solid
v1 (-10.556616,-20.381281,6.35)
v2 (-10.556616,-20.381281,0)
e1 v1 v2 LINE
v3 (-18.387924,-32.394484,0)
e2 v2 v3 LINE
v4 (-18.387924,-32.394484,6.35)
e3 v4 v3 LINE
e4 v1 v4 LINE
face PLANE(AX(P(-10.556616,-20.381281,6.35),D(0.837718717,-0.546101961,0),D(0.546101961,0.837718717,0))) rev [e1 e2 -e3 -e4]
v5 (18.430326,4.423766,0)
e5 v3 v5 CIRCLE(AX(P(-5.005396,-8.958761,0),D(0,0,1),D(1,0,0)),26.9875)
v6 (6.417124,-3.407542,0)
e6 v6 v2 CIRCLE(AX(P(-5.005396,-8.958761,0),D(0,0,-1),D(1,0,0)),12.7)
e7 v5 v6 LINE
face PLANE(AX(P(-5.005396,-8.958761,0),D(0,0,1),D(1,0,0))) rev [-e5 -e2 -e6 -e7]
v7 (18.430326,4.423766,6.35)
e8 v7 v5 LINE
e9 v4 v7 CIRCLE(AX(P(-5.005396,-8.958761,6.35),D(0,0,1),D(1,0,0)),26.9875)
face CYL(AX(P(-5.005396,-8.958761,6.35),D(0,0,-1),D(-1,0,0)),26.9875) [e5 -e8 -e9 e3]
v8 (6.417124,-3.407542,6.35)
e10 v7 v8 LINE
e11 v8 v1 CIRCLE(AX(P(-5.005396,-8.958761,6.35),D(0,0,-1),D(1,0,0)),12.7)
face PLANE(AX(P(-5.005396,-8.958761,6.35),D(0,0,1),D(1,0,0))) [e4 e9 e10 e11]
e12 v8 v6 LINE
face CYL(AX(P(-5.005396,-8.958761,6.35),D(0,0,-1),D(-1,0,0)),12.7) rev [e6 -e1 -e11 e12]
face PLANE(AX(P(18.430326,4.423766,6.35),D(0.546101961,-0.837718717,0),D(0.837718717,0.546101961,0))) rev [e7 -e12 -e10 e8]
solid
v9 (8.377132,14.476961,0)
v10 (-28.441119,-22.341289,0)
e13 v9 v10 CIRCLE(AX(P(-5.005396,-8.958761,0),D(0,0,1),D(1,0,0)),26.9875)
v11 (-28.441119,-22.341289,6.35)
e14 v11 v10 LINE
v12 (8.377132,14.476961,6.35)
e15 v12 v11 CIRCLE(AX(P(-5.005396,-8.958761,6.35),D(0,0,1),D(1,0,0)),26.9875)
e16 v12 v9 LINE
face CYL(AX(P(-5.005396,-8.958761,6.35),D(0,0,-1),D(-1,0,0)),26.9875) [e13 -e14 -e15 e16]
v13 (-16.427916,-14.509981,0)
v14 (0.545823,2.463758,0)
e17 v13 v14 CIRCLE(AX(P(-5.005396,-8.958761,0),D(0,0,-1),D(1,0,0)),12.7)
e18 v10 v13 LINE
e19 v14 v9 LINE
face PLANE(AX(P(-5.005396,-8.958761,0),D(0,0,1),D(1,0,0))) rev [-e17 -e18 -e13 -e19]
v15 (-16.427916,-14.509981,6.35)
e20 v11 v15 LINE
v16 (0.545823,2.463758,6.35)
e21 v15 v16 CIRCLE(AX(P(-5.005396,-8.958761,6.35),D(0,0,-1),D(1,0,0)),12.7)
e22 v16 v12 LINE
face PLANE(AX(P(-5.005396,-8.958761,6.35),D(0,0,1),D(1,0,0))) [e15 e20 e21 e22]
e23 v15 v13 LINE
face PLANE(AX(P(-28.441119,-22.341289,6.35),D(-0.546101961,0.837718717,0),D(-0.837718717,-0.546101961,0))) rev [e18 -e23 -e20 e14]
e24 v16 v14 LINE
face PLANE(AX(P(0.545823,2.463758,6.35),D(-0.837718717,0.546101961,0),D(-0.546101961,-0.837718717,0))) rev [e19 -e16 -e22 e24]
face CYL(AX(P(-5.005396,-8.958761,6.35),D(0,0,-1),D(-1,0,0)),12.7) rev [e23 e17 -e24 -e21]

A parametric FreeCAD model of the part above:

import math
import FreeCAD as App
import Part
import Sketcher
Q = App.Units.Quantity

doc = App.newDocument("Part")
body = doc.addObject("PartDesign::Body", "Body")

sketch1 = body.newObject("Sketcher::SketchObject", "Sketch")
sketch1.AttachmentSupport = (doc.getObject("XY_Plane"), [""])
sketch1.MapMode = "FlatFace"
sketch1.addGeometry([
    Part.LineSegment(App.Vector(-11, -20, 0), App.Vector(-18, -32, 0)),
    Part.ArcOfCircle(Part.Circle(App.Vector(-5, -9, 0), App.Vector(0, 0, 1), 27), math.radians(-120), math.radians(30)),
    Part.LineSegment(App.Vector(18, 4, 0), App.Vector(6, -3, 0)),
    Part.ArcOfCircle(Part.Circle(App.Vector(-5, -9, 0), App.Vector(0, 0, 1), 13), math.radians(-116), math.radians(26)),
], False)
sketch1.addConstraint([
    Sketcher.Constraint("Coincident", 0, 2, 1, 1),
    Sketcher.Constraint("Coincident", 1, 2, 2, 1),
    Sketcher.Constraint("Coincident", 2, 2, 3, 2),
    Sketcher.Constraint("Coincident", 3, 1, 0, 1),
    Sketcher.Constraint("Coincident", 3, 3, 1, 3),
    Sketcher.Constraint("Equal", 0, 2),
    Sketcher.Constraint("Radius", 3, Q("0.5 in")),
    Sketcher.Constraint("Radius", 1, Q("1.0625 in")),
    Sketcher.Constraint("Angle", 0, Q("-123.1 deg")),
    Sketcher.Constraint("Angle", 2, Q("-146.9 deg")),
    Sketcher.Constraint("DistanceY", 1, 3, -1, 1, Q("8.958761 mm")),
    Sketcher.Constraint("DistanceY", 2, 2, -1, 1, Q("3.407542 mm")),
    Sketcher.Constraint("DistanceX", 1, 3, -1, 1, Q("5.005396 mm")),
])
pad1 = body.newObject("PartDesign::Pad", "Pad")
pad1.Profile = sketch1
pad1.Length = Q("0.25 in")
body2 = doc.addObject("PartDesign::Body", "Body001")

sketch2 = body2.newObject("Sketcher::SketchObject", "Sketch001")
sketch2.AttachmentSupport = (doc.getObject("XY_Plane001"), [""])
sketch2.MapMode = "FlatFace"
sketch2.addGeometry([
    Part.LineSegment(App.Vector(-28, -22, 0), App.Vector(-16, -15, 0)),
    Part.ArcOfCircle(Part.Circle(App.Vector(-5, -9, 0), App.Vector(0, 0, 1), 13), math.radians(64), math.radians(206)),
    Part.LineSegment(App.Vector(1, 2, 0), App.Vector(8, 14, 0)),
    Part.ArcOfCircle(Part.Circle(App.Vector(-5, -9, 0), App.Vector(0, 0, 1), 27), math.radians(60), math.radians(210)),
], False)
sketch2.addConstraint([
    Sketcher.Constraint("Coincident", 0, 2, 1, 2),
    Sketcher.Constraint("Coincident", 1, 1, 2, 1),
    Sketcher.Constraint("Coincident", 2, 2, 3, 1),
    Sketcher.Constraint("Coincident", 3, 2, 0, 1),
    Sketcher.Constraint("Coincident", 3, 3, 1, 3),
    Sketcher.Constraint("Equal", 0, 2),
    Sketcher.Constraint("Radius", 1, Q("0.5 in")),
    Sketcher.Constraint("Radius", 3, Q("1.0625 in")),
    Sketcher.Constraint("Angle", 0, Q("33.1 deg")),
    Sketcher.Constraint("Angle", 2, Q("56.9 deg")),
    Sketcher.Constraint("DistanceY", 1, 3, -1, 1, Q("8.958761 mm")),
    Sketcher.Constraint("DistanceY", 0, 2, -1, 1, Q("14.509981 mm")),
    Sketcher.Constraint("DistanceX", -1, 1, 2, 2, Q("8.377132 mm")),
])
pad2 = body2.newObject("PartDesign::Pad", "Pad001")
pad2.Profile = sketch2
pad2.Length = Q("0.25 in")

doc.recompute()
